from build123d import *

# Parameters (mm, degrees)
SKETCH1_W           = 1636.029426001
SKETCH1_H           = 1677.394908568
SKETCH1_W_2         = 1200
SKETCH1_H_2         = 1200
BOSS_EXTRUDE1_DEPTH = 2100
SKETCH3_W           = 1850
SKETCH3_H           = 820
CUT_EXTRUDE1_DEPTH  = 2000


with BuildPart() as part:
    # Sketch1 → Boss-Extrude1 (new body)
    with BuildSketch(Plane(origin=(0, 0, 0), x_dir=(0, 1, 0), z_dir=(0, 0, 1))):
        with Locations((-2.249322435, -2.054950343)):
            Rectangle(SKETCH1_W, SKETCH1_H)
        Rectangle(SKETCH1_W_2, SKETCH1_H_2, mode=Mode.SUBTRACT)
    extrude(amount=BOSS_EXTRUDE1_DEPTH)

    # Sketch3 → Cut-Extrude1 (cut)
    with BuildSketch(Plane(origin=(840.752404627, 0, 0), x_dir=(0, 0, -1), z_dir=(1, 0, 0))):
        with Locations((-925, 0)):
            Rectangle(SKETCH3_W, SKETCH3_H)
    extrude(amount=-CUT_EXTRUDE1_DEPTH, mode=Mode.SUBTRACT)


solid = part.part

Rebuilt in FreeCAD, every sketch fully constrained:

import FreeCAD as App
import Part
import Sketcher
from FreeCAD import Vector
Q = App.Units.Quantity


def add_polygon(sketch, points):
    """Adds a closed chain of lines whose ends are joined by coincident constraints."""
    first, n = sketch.GeometryCount, len(points)
    for a, b in zip(points, points[1:] + points[:1]):
        sketch.addGeometry(Part.LineSegment(App.Vector(*a, 0), App.Vector(*b, 0)), False)
    for i in range(n):
        sketch.addConstraint(Sketcher.Constraint("Coincident", first + i, 2, first + (i + 1) % n, 1))

doc = App.newDocument("Part")
body = doc.addObject("PartDesign::Body", "Body")

# Sketch on XY plane
sketch1 = body.newObject("Sketcher::SketchObject", "Sketch")
sketch1.AttachmentSupport = (doc.getObject("XY_Plane"), [""])
sketch1.MapMode = "FlatFace"
add_polygon(sketch1, [(-836.642504, -820.264035), (840.752405, -820.264035), (840.752405, 815.765391), (-836.642504, 815.765391)])  # lines 0-3
add_polygon(sketch1, [(600, 600), (600, -600), (-600, -600), (-600, 600)])  # lines 4-7
sketch1.addConstraint([
    Sketcher.Constraint("Horizontal", 0),
    Sketcher.Constraint("Vertical", 1),
    Sketcher.Constraint("Horizontal", 2),
    Sketcher.Constraint("Vertical", 3),
    Sketcher.Constraint("Vertical", 4),
    Sketcher.Constraint("Horizontal", 5),
    Sketcher.Constraint("Vertical", 6),
    Sketcher.Constraint("Horizontal", 7),
    Sketcher.Constraint("Symmetric", 4, 2, 6, 2, -1, 1),
    Sketcher.Constraint("Equal", 7, 4),
    Sketcher.Constraint("DistanceX", 5, 2, 5, 1, Q("1200 mm")),
    Sketcher.Constraint("DistanceX", 0, 1, 0, 2, Q("1677.394909 mm")),
    Sketcher.Constraint("DistanceY", 1, 1, 1, 2, Q("1636.029426 mm")),
    Sketcher.Constraint("DistanceY", -1, 1, 1, 2, Q("815.765391 mm")),
    Sketcher.Constraint("DistanceX", -1, 1, 0, 2, Q("840.752405 mm")),
])
pad1 = body.newObject("PartDesign::Pad", "Pad")
pad1.Profile = sketch1
pad1.Length = 2100

# Sketch on YZ plane
sketch2 = body.newObject("Sketcher::SketchObject", "Sketch001")
sketch2.AttachmentSupport = (doc.getObject("YZ_Plane"), [""])
sketch2.MapMode = "FlatFace"
sketch2.AttachmentOffset = App.Placement(Vector(0, 0, 840.752405), App.Rotation())
add_polygon(sketch2, [(410, 1850), (-410, 1850), (-410, 0), (410, 0)])  # lines 0-3
sketch2.addConstraint([
    Sketcher.Constraint("Horizontal", 0),
    Sketcher.Constraint("Vertical", 1),
    Sketcher.Constraint("Horizontal", 2),
    Sketcher.Constraint("Vertical", 3),
    Sketcher.Constraint("Symmetric", 1, 2, 2, 2, -1, 1),
    Sketcher.Constraint("DistanceX", 0, 2, 0, 1, Q("820 mm")),
    Sketcher.Constraint("DistanceY", 1, 2, 1, 1, Q("1850 mm")),
])
pocket1 = body.newObject("PartDesign::Pocket", "Pocket")
pocket1.Profile = sketch2
pocket1.Length = 2000

doc.recompute()
